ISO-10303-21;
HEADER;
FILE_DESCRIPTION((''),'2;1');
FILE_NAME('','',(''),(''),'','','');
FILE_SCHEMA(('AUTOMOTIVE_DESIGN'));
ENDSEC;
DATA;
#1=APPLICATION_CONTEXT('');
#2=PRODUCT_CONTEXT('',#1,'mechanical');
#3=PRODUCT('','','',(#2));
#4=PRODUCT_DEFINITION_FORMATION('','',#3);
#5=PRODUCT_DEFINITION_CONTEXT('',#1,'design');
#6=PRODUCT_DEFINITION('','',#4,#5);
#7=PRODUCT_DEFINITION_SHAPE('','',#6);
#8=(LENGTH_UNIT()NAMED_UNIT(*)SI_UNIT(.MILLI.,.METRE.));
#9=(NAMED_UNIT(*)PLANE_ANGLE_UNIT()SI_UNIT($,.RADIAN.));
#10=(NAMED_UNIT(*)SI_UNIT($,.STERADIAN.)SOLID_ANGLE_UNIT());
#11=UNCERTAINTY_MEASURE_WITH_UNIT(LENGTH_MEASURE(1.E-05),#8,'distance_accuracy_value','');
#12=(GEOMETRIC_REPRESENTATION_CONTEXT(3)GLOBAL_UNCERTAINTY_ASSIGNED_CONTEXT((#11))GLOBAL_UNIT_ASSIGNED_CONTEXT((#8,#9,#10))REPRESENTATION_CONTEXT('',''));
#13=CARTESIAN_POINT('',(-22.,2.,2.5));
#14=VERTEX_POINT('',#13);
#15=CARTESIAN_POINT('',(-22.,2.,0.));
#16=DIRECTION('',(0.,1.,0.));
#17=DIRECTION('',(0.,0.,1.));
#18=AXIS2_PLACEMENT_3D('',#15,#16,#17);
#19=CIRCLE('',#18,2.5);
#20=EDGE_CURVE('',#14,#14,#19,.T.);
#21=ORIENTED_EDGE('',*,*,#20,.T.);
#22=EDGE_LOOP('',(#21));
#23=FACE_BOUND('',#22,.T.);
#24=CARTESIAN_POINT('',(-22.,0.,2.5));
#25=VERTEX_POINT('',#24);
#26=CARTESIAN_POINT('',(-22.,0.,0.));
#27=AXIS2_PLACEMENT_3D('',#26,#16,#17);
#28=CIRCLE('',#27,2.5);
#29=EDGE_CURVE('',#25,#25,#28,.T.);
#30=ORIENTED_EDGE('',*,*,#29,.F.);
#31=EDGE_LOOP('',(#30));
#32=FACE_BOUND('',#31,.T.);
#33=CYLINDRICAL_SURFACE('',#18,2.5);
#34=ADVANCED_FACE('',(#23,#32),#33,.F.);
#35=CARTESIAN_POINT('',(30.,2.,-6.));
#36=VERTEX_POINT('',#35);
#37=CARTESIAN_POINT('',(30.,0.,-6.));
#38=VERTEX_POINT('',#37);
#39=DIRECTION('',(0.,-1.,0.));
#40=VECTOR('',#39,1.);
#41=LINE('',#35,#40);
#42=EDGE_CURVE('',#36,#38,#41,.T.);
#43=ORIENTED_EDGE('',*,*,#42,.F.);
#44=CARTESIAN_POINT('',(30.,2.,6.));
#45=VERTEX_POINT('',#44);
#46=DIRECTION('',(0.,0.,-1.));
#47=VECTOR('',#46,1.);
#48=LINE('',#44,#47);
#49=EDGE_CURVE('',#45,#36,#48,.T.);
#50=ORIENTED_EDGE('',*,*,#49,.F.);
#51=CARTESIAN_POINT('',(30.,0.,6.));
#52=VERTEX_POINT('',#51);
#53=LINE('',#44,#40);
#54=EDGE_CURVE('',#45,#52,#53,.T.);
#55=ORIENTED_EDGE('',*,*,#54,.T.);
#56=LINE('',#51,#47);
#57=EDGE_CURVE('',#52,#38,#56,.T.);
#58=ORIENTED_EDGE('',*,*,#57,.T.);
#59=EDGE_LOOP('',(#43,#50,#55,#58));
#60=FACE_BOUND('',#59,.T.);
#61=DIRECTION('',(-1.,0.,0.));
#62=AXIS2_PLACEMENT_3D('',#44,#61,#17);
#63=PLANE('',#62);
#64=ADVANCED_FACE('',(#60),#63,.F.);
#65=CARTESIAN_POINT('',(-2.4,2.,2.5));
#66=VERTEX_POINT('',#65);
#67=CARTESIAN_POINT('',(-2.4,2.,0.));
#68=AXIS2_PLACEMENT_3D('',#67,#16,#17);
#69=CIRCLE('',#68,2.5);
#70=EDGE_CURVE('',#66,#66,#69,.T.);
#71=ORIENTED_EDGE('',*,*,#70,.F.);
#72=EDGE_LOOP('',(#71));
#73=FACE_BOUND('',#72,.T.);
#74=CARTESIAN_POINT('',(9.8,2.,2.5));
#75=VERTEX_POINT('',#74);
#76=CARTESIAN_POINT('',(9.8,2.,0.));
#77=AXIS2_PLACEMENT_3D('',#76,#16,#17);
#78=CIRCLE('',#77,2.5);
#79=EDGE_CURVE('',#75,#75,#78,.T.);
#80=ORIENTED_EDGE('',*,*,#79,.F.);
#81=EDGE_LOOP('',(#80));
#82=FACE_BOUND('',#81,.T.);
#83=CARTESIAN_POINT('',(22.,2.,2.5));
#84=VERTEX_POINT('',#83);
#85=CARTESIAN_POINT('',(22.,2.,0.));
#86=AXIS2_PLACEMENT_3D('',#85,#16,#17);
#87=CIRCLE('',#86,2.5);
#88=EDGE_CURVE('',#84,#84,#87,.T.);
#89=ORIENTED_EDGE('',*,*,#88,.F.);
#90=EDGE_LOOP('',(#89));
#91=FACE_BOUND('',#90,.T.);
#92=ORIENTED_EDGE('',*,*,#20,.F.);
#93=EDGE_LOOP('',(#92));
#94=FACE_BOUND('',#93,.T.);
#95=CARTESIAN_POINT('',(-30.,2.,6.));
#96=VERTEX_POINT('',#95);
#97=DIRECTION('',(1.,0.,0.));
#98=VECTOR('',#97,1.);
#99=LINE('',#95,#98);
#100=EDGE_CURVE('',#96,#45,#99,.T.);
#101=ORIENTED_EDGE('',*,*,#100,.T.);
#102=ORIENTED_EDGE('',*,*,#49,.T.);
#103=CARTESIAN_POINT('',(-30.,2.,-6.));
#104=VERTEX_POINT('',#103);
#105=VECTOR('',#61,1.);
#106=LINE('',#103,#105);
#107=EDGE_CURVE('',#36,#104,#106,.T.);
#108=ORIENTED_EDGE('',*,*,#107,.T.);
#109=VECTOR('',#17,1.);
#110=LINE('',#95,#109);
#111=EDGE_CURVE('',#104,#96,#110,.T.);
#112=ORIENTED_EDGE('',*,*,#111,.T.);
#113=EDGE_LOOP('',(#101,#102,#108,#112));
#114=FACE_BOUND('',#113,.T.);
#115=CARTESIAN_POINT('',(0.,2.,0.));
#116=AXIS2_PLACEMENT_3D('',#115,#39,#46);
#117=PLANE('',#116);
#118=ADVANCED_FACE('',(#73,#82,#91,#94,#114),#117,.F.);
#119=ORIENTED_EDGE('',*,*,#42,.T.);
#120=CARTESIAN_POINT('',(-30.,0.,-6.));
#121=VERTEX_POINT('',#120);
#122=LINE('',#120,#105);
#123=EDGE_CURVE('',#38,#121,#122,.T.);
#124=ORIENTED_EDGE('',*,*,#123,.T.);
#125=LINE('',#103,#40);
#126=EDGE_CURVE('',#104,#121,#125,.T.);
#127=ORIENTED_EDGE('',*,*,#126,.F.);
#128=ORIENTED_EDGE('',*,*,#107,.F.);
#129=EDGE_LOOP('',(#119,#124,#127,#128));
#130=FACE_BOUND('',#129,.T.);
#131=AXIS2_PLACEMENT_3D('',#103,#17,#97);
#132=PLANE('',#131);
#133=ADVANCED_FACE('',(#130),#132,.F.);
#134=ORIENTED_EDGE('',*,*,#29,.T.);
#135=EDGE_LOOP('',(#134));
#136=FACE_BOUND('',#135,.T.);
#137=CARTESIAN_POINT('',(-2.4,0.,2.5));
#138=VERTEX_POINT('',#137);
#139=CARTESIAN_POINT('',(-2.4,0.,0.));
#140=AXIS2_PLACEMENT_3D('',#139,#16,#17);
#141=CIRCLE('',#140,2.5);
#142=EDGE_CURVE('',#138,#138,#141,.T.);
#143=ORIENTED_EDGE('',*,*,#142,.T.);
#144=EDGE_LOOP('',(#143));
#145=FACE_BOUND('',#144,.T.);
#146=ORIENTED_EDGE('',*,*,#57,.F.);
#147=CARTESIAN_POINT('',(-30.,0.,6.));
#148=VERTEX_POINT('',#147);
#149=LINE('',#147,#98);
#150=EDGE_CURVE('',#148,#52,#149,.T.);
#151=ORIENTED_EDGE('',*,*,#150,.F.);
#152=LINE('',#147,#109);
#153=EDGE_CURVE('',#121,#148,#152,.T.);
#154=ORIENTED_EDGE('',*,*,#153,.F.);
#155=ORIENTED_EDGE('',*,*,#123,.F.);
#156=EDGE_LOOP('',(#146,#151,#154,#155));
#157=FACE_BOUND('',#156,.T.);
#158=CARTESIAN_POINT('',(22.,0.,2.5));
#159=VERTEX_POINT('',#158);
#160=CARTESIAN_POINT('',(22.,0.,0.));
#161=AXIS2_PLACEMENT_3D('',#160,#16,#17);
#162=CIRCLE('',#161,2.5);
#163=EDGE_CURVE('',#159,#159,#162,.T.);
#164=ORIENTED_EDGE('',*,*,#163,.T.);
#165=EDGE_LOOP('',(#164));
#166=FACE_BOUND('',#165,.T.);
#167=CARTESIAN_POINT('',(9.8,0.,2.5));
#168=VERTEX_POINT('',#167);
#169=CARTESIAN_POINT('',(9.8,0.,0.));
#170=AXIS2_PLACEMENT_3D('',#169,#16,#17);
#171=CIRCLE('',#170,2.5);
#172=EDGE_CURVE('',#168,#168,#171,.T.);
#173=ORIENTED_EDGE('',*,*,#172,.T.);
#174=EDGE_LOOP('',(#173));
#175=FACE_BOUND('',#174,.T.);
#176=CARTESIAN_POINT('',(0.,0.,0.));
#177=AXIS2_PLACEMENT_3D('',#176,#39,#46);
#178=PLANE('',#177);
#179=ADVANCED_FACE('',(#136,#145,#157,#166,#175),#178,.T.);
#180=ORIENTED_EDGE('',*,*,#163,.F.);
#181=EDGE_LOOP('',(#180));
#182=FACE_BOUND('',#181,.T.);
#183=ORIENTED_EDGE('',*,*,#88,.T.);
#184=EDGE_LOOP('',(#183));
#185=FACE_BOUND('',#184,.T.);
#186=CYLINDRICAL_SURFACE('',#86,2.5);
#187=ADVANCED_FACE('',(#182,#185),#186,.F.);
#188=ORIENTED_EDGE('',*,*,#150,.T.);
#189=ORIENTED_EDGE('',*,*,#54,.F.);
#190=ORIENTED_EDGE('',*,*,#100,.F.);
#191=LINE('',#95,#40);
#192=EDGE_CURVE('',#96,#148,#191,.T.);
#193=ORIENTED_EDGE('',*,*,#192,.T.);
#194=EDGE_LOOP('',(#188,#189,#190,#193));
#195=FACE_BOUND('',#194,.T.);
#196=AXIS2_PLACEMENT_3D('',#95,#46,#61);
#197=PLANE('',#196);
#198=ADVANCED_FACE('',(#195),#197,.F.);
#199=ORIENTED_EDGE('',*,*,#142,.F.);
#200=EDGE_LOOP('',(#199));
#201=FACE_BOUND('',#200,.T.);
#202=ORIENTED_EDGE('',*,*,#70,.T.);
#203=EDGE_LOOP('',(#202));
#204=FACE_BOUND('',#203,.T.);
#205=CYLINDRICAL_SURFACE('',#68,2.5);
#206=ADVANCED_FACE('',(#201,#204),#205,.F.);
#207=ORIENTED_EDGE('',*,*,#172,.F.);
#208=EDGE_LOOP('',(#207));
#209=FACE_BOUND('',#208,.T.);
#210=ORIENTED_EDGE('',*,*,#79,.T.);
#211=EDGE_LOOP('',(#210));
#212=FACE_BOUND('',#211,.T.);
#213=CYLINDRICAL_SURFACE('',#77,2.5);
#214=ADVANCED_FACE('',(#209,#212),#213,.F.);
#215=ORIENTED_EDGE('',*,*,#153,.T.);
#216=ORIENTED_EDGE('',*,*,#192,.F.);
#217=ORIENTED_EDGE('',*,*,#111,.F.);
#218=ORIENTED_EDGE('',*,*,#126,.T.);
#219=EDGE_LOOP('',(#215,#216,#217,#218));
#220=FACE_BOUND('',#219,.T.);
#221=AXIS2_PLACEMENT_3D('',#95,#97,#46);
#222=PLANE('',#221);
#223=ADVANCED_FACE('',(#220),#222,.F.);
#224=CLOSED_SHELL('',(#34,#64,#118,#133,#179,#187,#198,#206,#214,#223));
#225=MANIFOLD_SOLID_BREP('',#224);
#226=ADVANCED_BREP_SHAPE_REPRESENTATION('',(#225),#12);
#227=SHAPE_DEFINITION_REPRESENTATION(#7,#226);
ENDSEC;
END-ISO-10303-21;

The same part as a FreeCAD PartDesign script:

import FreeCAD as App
import Part
import Sketcher
from FreeCAD import Vector


def add_polygon(sketch, points):
    """Adds a closed chain of lines whose ends are joined by coincident constraints."""
    first, n = sketch.GeometryCount, len(points)
    for a, b in zip(points, points[1:] + points[:1]):
        sketch.addGeometry(Part.LineSegment(App.Vector(*a, 0), App.Vector(*b, 0)), False)
    for i in range(n):
        sketch.addConstraint(Sketcher.Constraint("Coincident", first + i, 2, first + (i + 1) % n, 1))

doc = App.newDocument("Part")
body = doc.addObject("PartDesign::Body", "Body")

# Sketch on XZ plane
sketch1 = body.newObject("Sketcher::SketchObject", "Sketch")
sketch1.AttachmentSupport = (doc.getObject("XZ_Plane"), [""])
sketch1.MapMode = "FlatFace"
add_polygon(sketch1, [(-30, -6), (-30, 6), (30, 6), (30, -6)])  # lines 0-3
sketch1.addConstraint([
    Sketcher.Constraint("Vertical", 0),
    Sketcher.Constraint("Horizontal", 1),
    Sketcher.Constraint("Vertical", 2),
    Sketcher.Constraint("Horizontal", 3),
    Sketcher.Constraint("Symmetric", 0, 2, 2, 2, -1, 1),
    Sketcher.Constraint("DistanceX", 1, 1, 1, 2, 60.0),
    Sketcher.Constraint("DistanceY", 0, 1, 0, 2, 12.0),
])
pad1 = body.newObject("PartDesign::Pad", "Pad")
pad1.Profile = sketch1
pad1.Length = 2
pad1.Reversed = True

# Sketch on XZ plane
sketch2 = body.newObject("Sketcher::SketchObject", "Sketch001")
sketch2.AttachmentSupport = (doc.getObject("XZ_Plane"), [""])
sketch2.MapMode = "FlatFace"
sketch2.AttachmentOffset = App.Placement(Vector(0, 0, -2), App.Rotation())
sketch2.addGeometry([
    Part.Circle(Vector(22, 0, 0), Vector(0, 0, 1), 2.5),
    Part.Circle(Vector(9.8, 0, 0), Vector(0, 0, 1), 2.5),
    Part.Circle(Vector(-2.4, 0, 0), Vector(0, 0, 1), 2.5),
    Part.Circle(Vector(-22, 0, 0), Vector(0, 0, 1), 2.5),
], False)
sketch2.addConstraint([
    Sketcher.Constraint("Equal", 0, 1),
    Sketcher.Constraint("Equal", 1, 2),
    Sketcher.Constraint("Equal", 2, 3),
    Sketcher.Constraint("Symmetric", 0, 3, 3, 3, -1, 1),
    Sketcher.Constraint("PointOnObject", 0, 3, -1),
    Sketcher.Constraint("PointOnObject", 1, 3, -1),
    Sketcher.Constraint("PointOnObject", 2, 3, -1),
    Sketcher.Constraint("Diameter", 0, 5.0),
    Sketcher.Constraint("DistanceX", -1, 1, 0, 3, 22.0),
    Sketcher.Constraint("DistanceX", -1, 1, 1, 3, 9.8),
    Sketcher.Constraint("DistanceX", 2, 3, -1, 1, 2.4),
])
doc.recompute()
hole = body.newObject("PartDesign::Hole", "Hole")
hole.Profile = sketch2
hole.ThreadType = "None"
hole.Diameter = 5
hole.DepthType = "ThroughAll"
hole.Reversed = True

doc.recompute()
